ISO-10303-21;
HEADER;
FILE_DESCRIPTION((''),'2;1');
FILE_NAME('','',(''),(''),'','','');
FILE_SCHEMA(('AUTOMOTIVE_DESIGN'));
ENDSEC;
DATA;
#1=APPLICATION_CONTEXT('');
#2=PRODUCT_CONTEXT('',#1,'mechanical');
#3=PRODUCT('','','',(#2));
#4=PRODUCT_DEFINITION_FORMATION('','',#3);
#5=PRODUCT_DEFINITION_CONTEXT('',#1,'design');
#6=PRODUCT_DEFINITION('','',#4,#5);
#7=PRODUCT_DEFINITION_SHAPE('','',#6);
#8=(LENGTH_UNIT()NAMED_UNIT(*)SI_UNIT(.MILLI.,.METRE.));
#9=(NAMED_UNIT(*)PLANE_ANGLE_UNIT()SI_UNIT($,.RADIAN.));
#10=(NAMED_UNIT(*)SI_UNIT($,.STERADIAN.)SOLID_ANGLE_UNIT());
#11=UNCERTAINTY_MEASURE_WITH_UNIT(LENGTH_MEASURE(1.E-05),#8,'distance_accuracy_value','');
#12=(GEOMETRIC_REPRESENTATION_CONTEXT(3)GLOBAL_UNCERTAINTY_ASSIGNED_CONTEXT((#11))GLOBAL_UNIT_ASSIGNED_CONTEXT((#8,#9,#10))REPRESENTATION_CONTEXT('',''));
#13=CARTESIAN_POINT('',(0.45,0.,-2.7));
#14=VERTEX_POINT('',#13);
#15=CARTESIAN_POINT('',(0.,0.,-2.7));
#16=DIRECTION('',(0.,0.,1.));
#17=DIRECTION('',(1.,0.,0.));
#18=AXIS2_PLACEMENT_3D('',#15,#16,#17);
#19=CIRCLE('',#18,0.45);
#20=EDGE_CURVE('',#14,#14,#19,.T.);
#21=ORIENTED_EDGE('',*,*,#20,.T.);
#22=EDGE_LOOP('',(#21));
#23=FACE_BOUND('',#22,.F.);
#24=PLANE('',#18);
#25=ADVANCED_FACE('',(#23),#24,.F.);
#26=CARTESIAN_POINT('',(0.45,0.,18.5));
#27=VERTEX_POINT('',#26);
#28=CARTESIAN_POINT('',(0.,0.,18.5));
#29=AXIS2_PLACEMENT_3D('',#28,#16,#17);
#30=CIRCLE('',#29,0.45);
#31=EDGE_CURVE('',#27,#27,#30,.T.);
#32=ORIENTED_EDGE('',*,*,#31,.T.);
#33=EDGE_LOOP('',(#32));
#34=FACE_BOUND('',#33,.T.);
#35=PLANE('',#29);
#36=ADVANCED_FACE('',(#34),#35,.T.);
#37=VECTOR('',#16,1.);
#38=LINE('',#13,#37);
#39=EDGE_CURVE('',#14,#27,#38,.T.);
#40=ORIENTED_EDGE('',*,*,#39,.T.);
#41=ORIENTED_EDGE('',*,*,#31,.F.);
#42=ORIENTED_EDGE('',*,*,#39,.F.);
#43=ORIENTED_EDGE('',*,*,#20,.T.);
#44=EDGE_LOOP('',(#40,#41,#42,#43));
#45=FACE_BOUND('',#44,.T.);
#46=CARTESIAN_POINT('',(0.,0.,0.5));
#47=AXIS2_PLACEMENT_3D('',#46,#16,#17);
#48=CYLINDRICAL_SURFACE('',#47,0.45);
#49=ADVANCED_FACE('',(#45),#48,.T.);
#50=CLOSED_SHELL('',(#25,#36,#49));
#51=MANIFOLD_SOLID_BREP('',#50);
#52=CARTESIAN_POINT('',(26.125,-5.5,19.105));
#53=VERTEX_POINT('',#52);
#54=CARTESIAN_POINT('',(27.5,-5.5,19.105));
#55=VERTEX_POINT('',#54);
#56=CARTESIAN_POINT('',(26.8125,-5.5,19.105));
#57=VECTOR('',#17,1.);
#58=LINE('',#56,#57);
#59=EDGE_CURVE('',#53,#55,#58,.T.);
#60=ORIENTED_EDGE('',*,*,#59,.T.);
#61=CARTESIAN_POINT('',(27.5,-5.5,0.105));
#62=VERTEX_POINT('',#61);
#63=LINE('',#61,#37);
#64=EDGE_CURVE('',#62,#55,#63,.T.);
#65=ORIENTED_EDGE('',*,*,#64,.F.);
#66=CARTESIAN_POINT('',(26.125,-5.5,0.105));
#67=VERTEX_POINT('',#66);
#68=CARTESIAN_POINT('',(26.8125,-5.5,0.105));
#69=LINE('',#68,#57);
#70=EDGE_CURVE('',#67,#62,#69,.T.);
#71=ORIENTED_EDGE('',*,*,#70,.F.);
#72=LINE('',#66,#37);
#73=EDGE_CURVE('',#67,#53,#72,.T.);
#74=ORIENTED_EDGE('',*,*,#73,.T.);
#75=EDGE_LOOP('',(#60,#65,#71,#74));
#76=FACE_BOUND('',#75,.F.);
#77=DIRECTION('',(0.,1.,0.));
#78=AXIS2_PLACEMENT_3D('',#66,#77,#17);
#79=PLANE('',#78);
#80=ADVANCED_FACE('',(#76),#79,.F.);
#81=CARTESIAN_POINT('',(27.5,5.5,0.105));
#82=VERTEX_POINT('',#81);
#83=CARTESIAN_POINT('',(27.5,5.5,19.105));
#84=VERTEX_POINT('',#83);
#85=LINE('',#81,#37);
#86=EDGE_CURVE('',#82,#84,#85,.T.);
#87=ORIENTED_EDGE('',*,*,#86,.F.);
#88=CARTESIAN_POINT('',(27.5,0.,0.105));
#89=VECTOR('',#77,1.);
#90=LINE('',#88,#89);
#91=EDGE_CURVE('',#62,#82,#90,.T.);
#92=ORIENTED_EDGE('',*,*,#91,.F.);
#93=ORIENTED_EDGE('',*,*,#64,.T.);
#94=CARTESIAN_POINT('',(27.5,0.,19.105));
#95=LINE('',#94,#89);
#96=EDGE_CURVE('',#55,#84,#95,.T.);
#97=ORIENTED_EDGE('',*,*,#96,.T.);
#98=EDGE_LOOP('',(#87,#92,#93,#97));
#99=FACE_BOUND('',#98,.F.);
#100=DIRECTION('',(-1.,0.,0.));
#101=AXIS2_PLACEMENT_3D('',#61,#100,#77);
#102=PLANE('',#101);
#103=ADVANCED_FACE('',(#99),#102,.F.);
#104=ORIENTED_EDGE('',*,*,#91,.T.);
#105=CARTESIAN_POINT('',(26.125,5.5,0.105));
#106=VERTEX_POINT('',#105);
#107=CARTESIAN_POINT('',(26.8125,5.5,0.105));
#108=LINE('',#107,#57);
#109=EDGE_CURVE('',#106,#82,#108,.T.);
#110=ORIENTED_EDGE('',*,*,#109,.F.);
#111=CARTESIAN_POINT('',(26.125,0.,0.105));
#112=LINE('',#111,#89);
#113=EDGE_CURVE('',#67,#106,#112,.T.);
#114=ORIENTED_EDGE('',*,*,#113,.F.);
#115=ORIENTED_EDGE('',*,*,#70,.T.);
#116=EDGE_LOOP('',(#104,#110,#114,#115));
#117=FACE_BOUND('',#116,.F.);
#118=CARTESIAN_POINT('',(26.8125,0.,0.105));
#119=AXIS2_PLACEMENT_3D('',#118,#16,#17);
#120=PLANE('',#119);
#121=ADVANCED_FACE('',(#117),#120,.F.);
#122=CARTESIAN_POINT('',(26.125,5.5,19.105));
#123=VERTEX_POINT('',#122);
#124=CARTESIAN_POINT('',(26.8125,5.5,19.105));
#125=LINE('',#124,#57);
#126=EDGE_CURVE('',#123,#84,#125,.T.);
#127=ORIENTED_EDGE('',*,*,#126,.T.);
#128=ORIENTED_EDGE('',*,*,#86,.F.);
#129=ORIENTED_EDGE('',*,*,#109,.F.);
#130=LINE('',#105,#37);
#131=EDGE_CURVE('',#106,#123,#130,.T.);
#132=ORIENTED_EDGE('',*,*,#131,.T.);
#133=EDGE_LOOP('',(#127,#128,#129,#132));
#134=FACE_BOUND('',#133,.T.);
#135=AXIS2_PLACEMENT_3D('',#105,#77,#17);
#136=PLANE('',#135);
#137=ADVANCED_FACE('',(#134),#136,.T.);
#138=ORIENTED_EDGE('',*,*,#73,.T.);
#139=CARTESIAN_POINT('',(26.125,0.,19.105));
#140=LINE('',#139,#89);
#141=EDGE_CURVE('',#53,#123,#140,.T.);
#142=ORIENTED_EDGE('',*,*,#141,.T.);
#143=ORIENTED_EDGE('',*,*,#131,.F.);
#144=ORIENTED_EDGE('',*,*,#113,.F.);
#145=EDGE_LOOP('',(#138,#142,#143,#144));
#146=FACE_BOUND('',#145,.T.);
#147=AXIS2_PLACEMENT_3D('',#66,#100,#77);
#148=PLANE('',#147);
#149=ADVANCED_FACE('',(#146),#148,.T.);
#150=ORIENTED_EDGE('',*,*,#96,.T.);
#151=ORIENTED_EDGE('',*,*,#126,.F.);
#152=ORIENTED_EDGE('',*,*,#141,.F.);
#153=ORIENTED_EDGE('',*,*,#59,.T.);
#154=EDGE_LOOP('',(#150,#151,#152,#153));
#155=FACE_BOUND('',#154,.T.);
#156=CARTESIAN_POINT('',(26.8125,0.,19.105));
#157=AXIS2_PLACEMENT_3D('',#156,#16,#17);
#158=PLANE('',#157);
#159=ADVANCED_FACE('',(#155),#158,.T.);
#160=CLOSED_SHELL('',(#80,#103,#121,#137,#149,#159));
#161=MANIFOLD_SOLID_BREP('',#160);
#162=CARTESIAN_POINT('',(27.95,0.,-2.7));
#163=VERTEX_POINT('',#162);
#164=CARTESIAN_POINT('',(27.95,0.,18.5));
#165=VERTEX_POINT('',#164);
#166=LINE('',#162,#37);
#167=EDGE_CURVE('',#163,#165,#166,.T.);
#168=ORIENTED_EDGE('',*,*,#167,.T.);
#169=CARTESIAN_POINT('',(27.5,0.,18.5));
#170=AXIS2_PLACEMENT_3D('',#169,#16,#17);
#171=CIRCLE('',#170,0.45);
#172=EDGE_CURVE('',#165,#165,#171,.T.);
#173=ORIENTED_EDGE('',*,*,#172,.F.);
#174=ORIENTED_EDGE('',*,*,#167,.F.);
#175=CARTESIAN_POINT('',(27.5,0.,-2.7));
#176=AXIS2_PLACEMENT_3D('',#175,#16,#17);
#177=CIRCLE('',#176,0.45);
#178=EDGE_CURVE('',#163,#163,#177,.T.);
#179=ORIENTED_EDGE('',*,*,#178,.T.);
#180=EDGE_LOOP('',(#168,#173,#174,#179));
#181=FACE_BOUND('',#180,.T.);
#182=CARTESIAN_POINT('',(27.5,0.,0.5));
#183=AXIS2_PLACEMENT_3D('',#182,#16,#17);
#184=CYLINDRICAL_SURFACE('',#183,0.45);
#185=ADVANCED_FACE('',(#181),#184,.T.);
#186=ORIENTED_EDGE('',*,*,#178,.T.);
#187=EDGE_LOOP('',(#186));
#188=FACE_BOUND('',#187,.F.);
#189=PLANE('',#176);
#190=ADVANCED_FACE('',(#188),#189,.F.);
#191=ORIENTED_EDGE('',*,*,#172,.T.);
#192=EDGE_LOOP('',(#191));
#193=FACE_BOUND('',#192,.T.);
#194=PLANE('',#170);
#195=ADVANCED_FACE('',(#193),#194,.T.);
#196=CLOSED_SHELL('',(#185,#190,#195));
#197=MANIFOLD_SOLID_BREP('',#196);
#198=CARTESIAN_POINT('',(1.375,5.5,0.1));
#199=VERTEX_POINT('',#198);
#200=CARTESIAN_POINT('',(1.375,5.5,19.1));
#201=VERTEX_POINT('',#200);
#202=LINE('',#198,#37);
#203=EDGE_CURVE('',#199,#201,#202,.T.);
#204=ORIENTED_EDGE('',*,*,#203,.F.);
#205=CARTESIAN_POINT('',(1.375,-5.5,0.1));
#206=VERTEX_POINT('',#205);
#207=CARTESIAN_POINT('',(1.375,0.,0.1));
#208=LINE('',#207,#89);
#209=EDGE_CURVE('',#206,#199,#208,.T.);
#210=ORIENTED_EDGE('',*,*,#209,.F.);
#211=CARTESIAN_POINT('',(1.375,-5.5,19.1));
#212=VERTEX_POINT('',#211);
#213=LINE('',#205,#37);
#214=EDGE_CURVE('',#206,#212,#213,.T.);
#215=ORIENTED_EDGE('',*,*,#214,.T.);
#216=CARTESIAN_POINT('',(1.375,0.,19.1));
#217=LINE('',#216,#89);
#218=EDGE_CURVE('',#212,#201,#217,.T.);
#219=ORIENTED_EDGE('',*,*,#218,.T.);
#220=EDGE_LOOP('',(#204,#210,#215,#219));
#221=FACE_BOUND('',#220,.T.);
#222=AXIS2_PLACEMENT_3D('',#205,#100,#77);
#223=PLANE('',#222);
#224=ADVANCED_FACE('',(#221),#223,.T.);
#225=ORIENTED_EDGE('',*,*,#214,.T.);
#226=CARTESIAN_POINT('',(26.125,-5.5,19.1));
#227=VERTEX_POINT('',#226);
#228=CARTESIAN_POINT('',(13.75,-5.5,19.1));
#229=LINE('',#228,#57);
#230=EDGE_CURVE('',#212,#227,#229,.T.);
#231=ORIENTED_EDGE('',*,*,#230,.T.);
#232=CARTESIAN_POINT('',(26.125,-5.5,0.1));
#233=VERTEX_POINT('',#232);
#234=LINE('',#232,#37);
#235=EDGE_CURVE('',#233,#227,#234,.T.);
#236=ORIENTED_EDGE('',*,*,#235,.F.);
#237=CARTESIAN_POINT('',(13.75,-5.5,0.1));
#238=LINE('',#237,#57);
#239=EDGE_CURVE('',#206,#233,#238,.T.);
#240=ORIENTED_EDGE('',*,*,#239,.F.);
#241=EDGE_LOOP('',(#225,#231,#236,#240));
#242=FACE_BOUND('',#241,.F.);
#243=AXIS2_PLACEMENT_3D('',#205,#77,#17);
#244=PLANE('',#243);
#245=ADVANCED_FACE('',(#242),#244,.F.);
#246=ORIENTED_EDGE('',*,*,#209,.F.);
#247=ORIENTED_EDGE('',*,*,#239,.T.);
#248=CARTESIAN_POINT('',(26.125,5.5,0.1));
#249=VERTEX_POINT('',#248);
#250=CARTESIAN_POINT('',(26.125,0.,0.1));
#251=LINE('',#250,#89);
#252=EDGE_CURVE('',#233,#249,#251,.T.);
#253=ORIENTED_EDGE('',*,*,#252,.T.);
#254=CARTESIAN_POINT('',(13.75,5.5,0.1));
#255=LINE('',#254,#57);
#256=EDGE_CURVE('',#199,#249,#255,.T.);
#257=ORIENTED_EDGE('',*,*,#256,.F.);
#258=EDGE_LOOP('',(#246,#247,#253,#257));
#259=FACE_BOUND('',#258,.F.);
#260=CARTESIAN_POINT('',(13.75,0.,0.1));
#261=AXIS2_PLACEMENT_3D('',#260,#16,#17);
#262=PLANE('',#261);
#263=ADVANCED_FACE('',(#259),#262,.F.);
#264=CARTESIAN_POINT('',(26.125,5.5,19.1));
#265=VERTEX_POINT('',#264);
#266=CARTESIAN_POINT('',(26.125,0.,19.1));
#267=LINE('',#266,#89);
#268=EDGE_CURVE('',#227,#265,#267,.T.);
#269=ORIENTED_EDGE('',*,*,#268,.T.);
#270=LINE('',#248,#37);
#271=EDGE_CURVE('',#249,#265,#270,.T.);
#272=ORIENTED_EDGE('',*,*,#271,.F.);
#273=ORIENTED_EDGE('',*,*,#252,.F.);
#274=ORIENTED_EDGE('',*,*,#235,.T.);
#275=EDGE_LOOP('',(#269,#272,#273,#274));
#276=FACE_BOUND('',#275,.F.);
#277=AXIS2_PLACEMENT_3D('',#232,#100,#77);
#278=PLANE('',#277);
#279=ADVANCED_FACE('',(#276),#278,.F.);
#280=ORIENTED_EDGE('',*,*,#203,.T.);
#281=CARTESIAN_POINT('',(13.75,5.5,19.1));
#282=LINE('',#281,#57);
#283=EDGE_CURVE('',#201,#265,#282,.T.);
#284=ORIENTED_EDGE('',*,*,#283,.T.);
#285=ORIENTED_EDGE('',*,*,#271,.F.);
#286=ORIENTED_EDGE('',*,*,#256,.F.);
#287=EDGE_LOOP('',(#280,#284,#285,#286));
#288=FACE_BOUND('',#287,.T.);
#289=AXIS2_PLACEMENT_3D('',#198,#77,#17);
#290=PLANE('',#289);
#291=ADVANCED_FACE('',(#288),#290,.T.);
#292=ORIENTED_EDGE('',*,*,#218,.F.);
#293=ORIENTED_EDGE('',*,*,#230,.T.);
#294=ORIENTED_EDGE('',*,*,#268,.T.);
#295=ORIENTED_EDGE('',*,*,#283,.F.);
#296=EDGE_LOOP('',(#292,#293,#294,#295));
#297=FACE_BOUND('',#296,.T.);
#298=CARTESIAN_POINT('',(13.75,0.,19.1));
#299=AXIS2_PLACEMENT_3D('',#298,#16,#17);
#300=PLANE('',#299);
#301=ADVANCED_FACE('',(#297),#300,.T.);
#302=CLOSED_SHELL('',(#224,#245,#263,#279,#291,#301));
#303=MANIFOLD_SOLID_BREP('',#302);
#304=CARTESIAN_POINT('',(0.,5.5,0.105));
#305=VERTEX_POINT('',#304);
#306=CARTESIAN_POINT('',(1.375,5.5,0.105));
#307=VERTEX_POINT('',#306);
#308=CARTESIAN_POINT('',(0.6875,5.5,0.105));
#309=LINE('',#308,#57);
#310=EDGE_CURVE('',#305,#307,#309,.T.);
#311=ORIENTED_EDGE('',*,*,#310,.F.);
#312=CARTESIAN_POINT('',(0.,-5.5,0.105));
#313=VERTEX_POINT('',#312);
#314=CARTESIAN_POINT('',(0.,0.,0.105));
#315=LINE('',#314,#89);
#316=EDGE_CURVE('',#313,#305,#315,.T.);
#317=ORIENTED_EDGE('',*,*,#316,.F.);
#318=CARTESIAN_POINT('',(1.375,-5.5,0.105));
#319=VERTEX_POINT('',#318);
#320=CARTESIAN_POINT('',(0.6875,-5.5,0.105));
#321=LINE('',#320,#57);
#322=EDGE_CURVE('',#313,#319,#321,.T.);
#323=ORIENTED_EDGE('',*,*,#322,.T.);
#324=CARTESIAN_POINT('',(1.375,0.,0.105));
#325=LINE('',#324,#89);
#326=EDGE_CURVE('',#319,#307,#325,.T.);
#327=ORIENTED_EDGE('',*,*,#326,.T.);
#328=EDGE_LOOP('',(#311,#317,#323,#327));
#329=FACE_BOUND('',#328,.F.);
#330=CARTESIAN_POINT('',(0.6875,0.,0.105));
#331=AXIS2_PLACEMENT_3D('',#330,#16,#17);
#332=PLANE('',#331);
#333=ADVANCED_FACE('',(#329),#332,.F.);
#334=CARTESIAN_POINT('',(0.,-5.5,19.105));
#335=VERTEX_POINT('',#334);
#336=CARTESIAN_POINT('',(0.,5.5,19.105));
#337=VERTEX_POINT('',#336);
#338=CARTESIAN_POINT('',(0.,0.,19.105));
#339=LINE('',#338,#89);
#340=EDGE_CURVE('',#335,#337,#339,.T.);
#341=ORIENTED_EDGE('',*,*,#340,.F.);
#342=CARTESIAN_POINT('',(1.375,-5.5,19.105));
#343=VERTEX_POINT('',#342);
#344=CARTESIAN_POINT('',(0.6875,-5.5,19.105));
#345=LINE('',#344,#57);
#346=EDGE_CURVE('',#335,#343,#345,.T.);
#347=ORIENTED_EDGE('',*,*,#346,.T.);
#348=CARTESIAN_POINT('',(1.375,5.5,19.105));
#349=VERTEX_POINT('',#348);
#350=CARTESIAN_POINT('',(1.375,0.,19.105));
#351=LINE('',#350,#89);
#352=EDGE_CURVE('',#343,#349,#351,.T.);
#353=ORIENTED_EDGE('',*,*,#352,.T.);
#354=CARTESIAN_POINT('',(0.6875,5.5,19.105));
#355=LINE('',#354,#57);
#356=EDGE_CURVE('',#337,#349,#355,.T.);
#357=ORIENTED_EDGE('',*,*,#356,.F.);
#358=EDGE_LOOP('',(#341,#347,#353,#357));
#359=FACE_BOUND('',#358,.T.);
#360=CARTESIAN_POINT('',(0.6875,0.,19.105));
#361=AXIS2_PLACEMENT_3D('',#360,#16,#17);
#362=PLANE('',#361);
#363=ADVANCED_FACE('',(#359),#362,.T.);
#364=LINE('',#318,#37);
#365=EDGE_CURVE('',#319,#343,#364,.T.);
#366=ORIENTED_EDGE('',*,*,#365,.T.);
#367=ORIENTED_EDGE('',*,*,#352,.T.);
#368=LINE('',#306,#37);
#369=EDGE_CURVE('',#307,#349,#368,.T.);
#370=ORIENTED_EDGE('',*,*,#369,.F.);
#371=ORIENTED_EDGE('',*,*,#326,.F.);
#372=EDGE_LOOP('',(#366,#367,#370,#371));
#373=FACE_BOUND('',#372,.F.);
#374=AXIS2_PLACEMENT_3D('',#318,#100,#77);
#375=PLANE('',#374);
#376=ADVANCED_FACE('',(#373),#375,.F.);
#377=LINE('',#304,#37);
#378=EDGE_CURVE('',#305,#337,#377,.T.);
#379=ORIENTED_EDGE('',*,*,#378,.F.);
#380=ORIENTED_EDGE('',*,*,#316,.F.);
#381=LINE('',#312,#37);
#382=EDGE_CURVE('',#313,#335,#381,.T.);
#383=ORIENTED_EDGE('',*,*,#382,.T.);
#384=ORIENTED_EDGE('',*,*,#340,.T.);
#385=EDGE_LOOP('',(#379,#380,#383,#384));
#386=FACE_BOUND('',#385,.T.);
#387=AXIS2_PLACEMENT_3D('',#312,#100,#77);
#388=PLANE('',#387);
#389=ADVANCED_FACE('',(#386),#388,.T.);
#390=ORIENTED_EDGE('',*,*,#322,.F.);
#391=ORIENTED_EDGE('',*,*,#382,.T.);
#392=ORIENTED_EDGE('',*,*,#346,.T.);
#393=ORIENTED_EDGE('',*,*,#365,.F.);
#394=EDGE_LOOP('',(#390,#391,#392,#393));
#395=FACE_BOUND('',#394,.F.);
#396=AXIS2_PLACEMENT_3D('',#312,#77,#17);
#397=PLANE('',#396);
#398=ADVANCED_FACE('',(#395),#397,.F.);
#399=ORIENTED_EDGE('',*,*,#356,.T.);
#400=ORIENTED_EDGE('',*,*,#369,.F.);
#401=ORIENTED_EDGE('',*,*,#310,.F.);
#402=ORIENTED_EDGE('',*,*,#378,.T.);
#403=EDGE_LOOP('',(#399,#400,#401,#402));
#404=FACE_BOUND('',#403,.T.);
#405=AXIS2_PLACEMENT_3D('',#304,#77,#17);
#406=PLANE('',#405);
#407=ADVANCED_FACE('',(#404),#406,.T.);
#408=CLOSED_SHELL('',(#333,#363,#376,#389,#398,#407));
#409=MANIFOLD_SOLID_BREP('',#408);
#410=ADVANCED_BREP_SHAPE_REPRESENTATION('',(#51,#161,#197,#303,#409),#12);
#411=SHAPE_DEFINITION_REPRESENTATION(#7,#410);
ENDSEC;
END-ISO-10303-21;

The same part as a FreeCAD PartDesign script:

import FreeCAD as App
import Part
import Sketcher
from FreeCAD import Vector

doc = App.newDocument("Part")
params = doc.addObject("Spreadsheet::Sheet", "Params")
for row, (alias, value) in enumerate([
    ("sketch1_height", "11 mm"),
    ("sketch1_width", "24.75 mm"),
    ("pad1_length", "19 mm"),
    ("sketch2_diameter", "0.9 mm"),
    ("pad2_length", "18 mm"),
    ("pad2_length2", "3.2 mm"),
    ("sketch3_height", "11 mm"),
    ("pad3_length", "19 mm"),
], start=1):
    params.set(f"A{row}", alias)
    params.set(f"B{row}", "=" + value)
    params.setAlias(f"B{row}", alias)

body = doc.addObject("PartDesign::Body", "Body")

sketch1 = body.newObject("Sketcher::SketchObject", "Sketch")
sketch1.AttachmentSupport = (doc.getObject("XY_Plane"), [""])
sketch1.MapMode = "FlatFace"
sketch1.AttachmentOffset = App.Placement(Vector(0, 0, 0.1), App.Rotation())
sketch1.addGeometry(Part.LineSegment(Vector(1, 6, 0), Vector(1, -6, 0)), False)
sketch1.addGeometry(Part.LineSegment(Vector(1, -6, 0), Vector(26, -6, 0)), False)
sketch1.addGeometry(Part.LineSegment(Vector(26, -6, 0), Vector(26, 6, 0)), False)
sketch1.addGeometry(Part.LineSegment(Vector(26, 6, 0), Vector(1, 6, 0)), False)
sketch1.addConstraint(Sketcher.Constraint("Coincident", 0, 2, 1, 1))
sketch1.addConstraint(Sketcher.Constraint("Coincident", 1, 2, 2, 1))
sketch1.addConstraint(Sketcher.Constraint("Coincident", 2, 2, 3, 1))
sketch1.addConstraint(Sketcher.Constraint("Coincident", 3, 2, 0, 1))
sketch1.addConstraint(Sketcher.Constraint("Vertical", 0))
sketch1.addConstraint(Sketcher.Constraint("Horizontal", 1))
sketch1.addConstraint(Sketcher.Constraint("Vertical", 2))
sketch1.addConstraint(Sketcher.Constraint("Horizontal", 3))
sketch1.addConstraint(Sketcher.Constraint("DistanceY", 0, 2, 0, 1, 11.0))
sketch1.addConstraint(Sketcher.Constraint("DistanceX", 1, 1, 1, 2, 24.75))
sketch1.addConstraint(Sketcher.Constraint("DistanceY", 0, 2, -1, 1, 5.5))
sketch1.addConstraint(Sketcher.Constraint("DistanceX", -1, 1, 0, 2, 1.375))
sketch1.setExpression("Constraints[8]", "Params.sketch1_height")
sketch1.setExpression("Constraints[9]", "Params.sketch1_width")
pad1 = body.newObject("PartDesign::Pad", "Pad")
pad1.Profile = sketch1
pad1.setExpression("Length", "Params.pad1_length")
body2 = doc.addObject("PartDesign::Body", "Body001")
body2.AllowCompound = True

sketch2 = body2.newObject("Sketcher::SketchObject", "Sketch001")
sketch2.AttachmentSupport = (doc.getObject("XY_Plane001"), [""])
sketch2.MapMode = "FlatFace"
sketch2.AttachmentOffset = App.Placement(Vector(0, 0, 0.5), App.Rotation())
sketch2.addGeometry(Part.Circle(Vector(0, 0, 0), Vector(0, 0, 1), 0.45), False)
sketch2.addGeometry(Part.Circle(Vector(27.5, 0, 0), Vector(0, 0, 1), 0.45), False)
sketch2.addConstraint(Sketcher.Constraint("Coincident", 0, 3, -1, 1))
sketch2.addConstraint(Sketcher.Constraint("Equal", 0, 1))
sketch2.addConstraint(Sketcher.Constraint("PointOnObject", 1, 3, -1))
sketch2.addConstraint(Sketcher.Constraint("Diameter", 0, 0.9))
sketch2.addConstraint(Sketcher.Constraint("DistanceX", -1, 1, 1, 3, 27.5))
sketch2.setExpression("Constraints[3]", "Params.sketch2_diameter")
pad2 = body2.newObject("PartDesign::Pad", "Pad001")
pad2.Profile = sketch2
pad2.Type = "TwoLengths"
pad2.setExpression("Length", "Params.pad2_length")
pad2.setExpression("Length2", "Params.pad2_length2")
body3 = doc.addObject("PartDesign::Body", "Body002")
body3.AllowCompound = True

sketch3 = body3.newObject("Sketcher::SketchObject", "Sketch002")
sketch3.AttachmentSupport = (doc.getObject("XY_Plane002"), [""])
sketch3.MapMode = "FlatFace"
sketch3.AttachmentOffset = App.Placement(Vector(0, 0, 0.105), App.Rotation())
sketch3.addGeometry(Part.LineSegment(Vector(0, 5.5, 0), Vector(0, -5.5, 0)), False)
sketch3.addGeometry(Part.LineSegment(Vector(0, -5.5, 0), Vector(1.4, -5.5, 0)), False)
sketch3.addGeometry(Part.LineSegment(Vector(1.4, -5.5, 0), Vector(1.4, 5.5, 0)), False)
sketch3.addGeometry(Part.LineSegment(Vector(1.4, 5.5, 0), Vector(0, 5.5, 0)), False)
sketch3.addGeometry(Part.LineSegment(Vector(26.1, 5.5, 0), Vector(26.1, -5.5, 0)), False)
sketch3.addGeometry(Part.LineSegment(Vector(26.1, -5.5, 0), Vector(27.5, -5.5, 0)), False)
sketch3.addGeometry(Part.LineSegment(Vector(27.5, -5.5, 0), Vector(27.5, 5.5, 0)), False)
sketch3.addGeometry(Part.LineSegment(Vector(27.5, 5.5, 0), Vector(26.1, 5.5, 0)), False)
sketch3.addConstraint(Sketcher.Constraint("Coincident", 0, 2, 1, 1))
sketch3.addConstraint(Sketcher.Constraint("Coincident", 1, 2, 2, 1))
sketch3.addConstraint(Sketcher.Constraint("Coincident", 2, 2, 3, 1))
sketch3.addConstraint(Sketcher.Constraint("Coincident", 3, 2, 0, 1))
sketch3.addConstraint(Sketcher.Constraint("Coincident", 4, 2, 5, 1))
sketch3.addConstraint(Sketcher.Constraint("Coincident", 5, 2, 6, 1))
sketch3.addConstraint(Sketcher.Constraint("Coincident", 6, 2, 7, 1))
sketch3.addConstraint(Sketcher.Constraint("Coincident", 7, 2, 4, 1))
sketch3.addConstraint(Sketcher.Constraint("Vertical", 0))
sketch3.addConstraint(Sketcher.Constraint("Horizontal", 1))
sketch3.addConstraint(Sketcher.Constraint("Vertical", 2))
sketch3.addConstraint(Sketcher.Constraint("Horizontal", 3))
sketch3.addConstraint(Sketcher.Constraint("Vertical", 4))
sketch3.addConstraint(Sketcher.Constraint("Horizontal", 5))
sketch3.addConstraint(Sketcher.Constraint("Vertical", 6))
sketch3.addConstraint(Sketcher.Constraint("Horizontal", 7))
sketch3.addConstraint(Sketcher.Constraint("Symmetric", 0, 2, 3, 2, -1, 1))
sketch3.addConstraint(Sketcher.Constraint("Horizontal", 1, 2, 4, 2))
sketch3.addConstraint(Sketcher.Constraint("Horizontal", 3, 2, 6, 2))
sketch3.addConstraint(Sketcher.Constraint("Equal", 3, 5))
sketch3.addConstraint(Sketcher.Constraint("DistanceY", 0, 2, 0, 1, 11.0))
sketch3.addConstraint(Sketcher.Constraint("DistanceX", -1, 1, 5, 2, 27.5))
sketch3.addConstraint(Sketcher.Constraint("DistanceX", 1, 1, 1, 2, 1.375))
sketch3.setExpression("Constraints[20]", "Params.sketch3_height")
pad3 = body3.newObject("PartDesign::Pad", "Pad002")
pad3.Profile = sketch3
pad3.setExpression("Length", "Params.pad3_length")

doc.recompute()
